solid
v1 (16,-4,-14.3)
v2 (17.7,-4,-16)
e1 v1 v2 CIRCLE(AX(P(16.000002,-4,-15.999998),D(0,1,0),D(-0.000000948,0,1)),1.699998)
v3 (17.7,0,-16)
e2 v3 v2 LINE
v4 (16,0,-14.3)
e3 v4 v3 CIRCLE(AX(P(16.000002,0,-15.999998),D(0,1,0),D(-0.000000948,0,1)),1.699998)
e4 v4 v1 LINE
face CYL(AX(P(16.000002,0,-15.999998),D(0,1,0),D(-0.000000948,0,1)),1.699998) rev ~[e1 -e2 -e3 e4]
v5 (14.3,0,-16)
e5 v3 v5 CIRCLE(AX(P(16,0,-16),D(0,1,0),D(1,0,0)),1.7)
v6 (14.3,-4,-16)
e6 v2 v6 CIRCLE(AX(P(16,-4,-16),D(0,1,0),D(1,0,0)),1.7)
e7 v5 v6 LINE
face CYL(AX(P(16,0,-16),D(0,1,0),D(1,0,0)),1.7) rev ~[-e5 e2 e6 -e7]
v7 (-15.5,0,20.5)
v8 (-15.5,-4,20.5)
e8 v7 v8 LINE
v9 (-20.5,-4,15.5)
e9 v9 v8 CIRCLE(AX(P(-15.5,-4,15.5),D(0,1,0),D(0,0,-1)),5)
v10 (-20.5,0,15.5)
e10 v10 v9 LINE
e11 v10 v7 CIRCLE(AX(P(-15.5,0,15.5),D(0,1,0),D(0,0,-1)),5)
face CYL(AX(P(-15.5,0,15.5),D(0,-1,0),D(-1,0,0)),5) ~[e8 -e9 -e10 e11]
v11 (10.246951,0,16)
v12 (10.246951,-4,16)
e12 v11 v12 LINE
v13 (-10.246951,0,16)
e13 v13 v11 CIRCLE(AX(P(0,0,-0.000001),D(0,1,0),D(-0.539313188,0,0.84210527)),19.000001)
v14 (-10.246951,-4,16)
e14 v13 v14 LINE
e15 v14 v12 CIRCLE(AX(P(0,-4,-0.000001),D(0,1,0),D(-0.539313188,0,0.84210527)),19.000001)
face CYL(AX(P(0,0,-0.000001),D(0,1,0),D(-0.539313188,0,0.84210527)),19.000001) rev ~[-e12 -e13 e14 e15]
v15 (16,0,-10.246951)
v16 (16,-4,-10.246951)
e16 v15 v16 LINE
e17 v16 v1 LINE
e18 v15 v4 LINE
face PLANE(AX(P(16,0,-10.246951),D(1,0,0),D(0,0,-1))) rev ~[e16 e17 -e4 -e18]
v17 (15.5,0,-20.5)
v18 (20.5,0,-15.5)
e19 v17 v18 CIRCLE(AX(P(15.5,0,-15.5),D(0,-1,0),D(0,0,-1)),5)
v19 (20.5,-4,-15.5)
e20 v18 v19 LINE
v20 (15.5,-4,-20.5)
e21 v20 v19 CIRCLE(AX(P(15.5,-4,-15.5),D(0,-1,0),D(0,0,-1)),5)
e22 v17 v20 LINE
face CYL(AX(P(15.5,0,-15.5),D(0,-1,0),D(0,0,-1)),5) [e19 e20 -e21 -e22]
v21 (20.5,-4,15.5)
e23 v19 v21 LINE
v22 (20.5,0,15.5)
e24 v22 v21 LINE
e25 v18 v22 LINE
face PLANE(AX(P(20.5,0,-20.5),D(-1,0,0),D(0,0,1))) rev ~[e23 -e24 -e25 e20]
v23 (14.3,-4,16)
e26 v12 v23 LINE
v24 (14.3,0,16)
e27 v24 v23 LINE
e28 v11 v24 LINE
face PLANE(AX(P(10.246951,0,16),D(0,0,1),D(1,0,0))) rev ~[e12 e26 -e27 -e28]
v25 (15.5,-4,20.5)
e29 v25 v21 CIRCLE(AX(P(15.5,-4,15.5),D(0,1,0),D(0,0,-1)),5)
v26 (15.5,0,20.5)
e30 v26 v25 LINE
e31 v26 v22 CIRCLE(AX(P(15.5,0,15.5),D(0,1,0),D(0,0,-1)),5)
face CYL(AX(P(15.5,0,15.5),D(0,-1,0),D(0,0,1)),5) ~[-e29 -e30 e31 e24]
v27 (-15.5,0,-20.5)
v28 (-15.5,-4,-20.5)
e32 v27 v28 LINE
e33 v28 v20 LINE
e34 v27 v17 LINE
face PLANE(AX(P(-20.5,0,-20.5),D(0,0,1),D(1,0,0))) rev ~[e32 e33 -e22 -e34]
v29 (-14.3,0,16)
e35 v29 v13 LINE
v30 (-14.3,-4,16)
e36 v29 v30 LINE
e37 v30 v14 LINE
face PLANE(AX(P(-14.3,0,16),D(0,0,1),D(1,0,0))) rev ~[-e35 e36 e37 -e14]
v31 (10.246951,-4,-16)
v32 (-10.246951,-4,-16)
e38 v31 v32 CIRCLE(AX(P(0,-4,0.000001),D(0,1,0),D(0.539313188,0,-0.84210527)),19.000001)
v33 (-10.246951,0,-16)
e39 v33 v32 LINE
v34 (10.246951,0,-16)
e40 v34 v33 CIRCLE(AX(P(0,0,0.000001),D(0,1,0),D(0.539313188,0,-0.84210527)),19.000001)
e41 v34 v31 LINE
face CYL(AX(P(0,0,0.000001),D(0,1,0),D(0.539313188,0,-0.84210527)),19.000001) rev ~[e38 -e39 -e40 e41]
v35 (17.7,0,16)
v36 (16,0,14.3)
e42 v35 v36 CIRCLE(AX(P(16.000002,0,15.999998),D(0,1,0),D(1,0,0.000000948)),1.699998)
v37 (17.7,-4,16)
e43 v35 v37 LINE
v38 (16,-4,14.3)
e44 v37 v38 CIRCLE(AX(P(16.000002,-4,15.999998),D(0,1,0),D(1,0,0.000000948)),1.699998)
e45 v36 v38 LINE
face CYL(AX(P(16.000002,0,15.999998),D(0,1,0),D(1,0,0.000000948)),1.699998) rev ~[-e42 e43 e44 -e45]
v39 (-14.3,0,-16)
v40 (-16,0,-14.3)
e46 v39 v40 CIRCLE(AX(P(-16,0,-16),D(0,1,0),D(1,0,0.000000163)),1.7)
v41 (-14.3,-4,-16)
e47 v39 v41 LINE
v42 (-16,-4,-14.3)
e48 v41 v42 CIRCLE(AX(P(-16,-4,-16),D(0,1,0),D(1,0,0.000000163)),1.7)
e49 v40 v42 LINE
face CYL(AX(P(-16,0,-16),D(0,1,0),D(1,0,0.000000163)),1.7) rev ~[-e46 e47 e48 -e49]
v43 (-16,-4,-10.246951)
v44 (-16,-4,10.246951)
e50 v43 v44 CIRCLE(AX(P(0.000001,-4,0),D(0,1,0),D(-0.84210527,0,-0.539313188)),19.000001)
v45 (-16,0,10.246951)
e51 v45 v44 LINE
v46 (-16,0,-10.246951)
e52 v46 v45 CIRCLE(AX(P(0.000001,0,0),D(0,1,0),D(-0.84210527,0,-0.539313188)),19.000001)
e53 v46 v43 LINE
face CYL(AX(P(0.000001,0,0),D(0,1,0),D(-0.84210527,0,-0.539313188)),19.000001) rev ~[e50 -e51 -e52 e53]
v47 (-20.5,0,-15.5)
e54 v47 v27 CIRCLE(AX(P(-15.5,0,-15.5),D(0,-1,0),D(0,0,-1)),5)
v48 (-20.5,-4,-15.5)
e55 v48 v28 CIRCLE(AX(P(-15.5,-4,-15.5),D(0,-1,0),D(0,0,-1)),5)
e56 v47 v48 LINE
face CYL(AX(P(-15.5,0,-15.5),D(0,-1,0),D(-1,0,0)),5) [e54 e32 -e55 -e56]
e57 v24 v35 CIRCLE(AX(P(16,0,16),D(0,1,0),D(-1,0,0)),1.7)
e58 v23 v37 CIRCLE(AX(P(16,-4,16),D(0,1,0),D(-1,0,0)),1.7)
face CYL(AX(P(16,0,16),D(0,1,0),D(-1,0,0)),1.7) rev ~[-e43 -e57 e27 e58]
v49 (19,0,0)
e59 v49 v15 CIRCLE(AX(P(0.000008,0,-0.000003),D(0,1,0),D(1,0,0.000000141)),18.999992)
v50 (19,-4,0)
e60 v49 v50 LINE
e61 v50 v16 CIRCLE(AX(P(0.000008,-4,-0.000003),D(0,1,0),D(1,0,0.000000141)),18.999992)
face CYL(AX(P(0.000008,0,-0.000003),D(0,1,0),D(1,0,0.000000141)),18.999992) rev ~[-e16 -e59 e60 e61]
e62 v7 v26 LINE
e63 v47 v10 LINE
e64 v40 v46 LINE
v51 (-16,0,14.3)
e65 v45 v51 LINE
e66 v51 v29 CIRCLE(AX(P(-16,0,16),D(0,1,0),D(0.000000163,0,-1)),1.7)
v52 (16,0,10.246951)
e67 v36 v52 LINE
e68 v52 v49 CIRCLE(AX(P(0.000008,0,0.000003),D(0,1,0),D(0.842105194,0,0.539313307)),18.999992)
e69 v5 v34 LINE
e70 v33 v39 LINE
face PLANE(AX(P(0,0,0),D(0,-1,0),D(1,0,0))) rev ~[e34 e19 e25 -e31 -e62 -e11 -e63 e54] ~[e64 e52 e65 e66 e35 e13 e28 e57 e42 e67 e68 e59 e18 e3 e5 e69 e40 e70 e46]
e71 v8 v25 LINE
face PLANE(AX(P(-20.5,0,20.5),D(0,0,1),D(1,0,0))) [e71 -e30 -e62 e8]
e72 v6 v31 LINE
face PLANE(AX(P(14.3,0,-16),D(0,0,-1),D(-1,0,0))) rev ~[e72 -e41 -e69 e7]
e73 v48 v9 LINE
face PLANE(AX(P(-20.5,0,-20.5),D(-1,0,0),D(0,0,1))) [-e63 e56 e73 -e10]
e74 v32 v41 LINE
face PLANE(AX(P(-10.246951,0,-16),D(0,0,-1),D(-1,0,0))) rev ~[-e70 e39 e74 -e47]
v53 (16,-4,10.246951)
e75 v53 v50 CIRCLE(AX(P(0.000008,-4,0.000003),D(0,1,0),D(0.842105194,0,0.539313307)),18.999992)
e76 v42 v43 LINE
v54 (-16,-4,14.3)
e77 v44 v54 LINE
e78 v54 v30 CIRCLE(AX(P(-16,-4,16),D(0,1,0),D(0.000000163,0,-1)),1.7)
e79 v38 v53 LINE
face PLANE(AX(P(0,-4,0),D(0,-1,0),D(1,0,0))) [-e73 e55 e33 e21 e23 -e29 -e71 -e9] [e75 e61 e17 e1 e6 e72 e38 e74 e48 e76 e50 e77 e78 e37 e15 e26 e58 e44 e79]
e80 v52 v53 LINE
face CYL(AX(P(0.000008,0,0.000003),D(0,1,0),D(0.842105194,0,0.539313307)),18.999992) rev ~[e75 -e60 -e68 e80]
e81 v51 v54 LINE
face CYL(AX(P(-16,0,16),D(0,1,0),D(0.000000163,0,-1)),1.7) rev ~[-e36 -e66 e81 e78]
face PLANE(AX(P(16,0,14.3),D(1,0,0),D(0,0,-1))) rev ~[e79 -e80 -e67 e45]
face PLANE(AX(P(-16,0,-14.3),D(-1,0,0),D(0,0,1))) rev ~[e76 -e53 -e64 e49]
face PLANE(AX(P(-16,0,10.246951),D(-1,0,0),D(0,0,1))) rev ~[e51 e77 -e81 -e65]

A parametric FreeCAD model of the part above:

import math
import FreeCAD as App
import Part
import Sketcher


def edges_at(feature, points):
    """Names of the edges that pass closest to the given points."""
    edges = feature.Shape.Edges
    near = lambda p: min(range(len(edges)), key=lambda i: edges[i].distToShape(Part.Vertex(*p))[0])
    return sorted({f"Edge{near(p) + 1}" for p in points})

doc = App.newDocument("Part")
params = doc.addObject("Spreadsheet::Sheet", "Params")
for row, (alias, value) in enumerate([
    ("sketch1_radius", "19.000001 mm"),
    ("sketch1_radius2", "1.7 mm"),
    ("sketch1_width", "41 mm"),
    ("pad1_length", "4 mm"),
    ("fillet_radius", "5 mm"),
], start=1):
    params.set(f"A{row}", alias)
    params.set(f"B{row}", "=" + value)
    params.setAlias(f"B{row}", alias)

body = doc.addObject("PartDesign::Body", "Body")

sketch1 = doc.addObject("Sketcher::SketchObject", "Sketch")
body.addObject(sketch1)
sketch1.AttachmentSupport = (doc.XZ_Plane, [""])
sketch1.MapMode = "FlatFace"
sketch1.addGeometry(Part.LineSegment(App.Vector(-20.5, 20.5, 0), App.Vector(-20.5, -20.5, 0)), False)
sketch1.addGeometry(Part.LineSegment(App.Vector(-20.5, -20.5, 0), App.Vector(20.5, -20.5, 0)), False)
sketch1.addGeometry(Part.LineSegment(App.Vector(20.5, -20.5, 0), App.Vector(20.5, 20.5, 0)), False)
sketch1.addGeometry(Part.LineSegment(App.Vector(20.5, 20.5, 0), App.Vector(-20.5, 20.5, 0)), False)
sketch1.addGeometry(Part.LineSegment(App.Vector(-16, 10.2, 0), App.Vector(-16, 14.3, 0)), False)
sketch1.addGeometry(Part.ArcOfCircle(Part.Circle(App.Vector(-16, 16, 0), App.Vector(0, 0, 1), 1.7), math.radians(0), math.radians(270)), False)
sketch1.addGeometry(Part.LineSegment(App.Vector(-14.3, 16, 0), App.Vector(-10.2, 16, 0)), False)
sketch1.addGeometry(Part.ArcOfCircle(Part.Circle(App.Vector(0, 0, 0), App.Vector(0, 0, 1), 19), math.radians(57), math.radians(123)), False)
sketch1.addGeometry(Part.LineSegment(App.Vector(10.2, 16, 0), App.Vector(14.3, 16, 0)), False)
sketch1.addGeometry(Part.ArcOfCircle(Part.Circle(App.Vector(16, 16, 0), App.Vector(0, 0, 1), 1.7), math.radians(0), math.radians(180)), False)
sketch1.addGeometry(Part.ArcOfCircle(Part.Circle(App.Vector(16, 16, 0), App.Vector(0, 0, 1), 1.7), math.radians(-90), math.radians(0)), False)
sketch1.addGeometry(Part.LineSegment(App.Vector(16, 14.3, 0), App.Vector(16, 10.2, 0)), False)
sketch1.addGeometry(Part.ArcOfCircle(Part.Circle(App.Vector(0, 0, 0), App.Vector(0, 0, 1), 19), math.radians(0), math.radians(33)), False)
sketch1.addGeometry(Part.ArcOfCircle(Part.Circle(App.Vector(0, 0, 0), App.Vector(0, 0, 1), 19), math.radians(-33), math.radians(0)), False)
sketch1.addGeometry(Part.LineSegment(App.Vector(16, -10.2, 0), App.Vector(16, -14.3, 0)), False)
sketch1.addGeometry(Part.ArcOfCircle(Part.Circle(App.Vector(16, -16, 0), App.Vector(0, 0, 1), 1.7), math.radians(0), math.radians(90)), False)
sketch1.addGeometry(Part.ArcOfCircle(Part.Circle(App.Vector(16, -16, 0), App.Vector(0, 0, 1), 1.7), math.radians(180), math.radians(360)), False)
sketch1.addGeometry(Part.LineSegment(App.Vector(14.3, -16, 0), App.Vector(10.2, -16, 0)), False)
sketch1.addGeometry(Part.ArcOfCircle(Part.Circle(App.Vector(0, 0, 0), App.Vector(0, 0, 1), 19), math.radians(-123), math.radians(-57)), False)
sketch1.addGeometry(Part.LineSegment(App.Vector(-10.2, -16, 0), App.Vector(-14.3, -16, 0)), False)
sketch1.addGeometry(Part.ArcOfCircle(Part.Circle(App.Vector(-16, -16, 0), App.Vector(0, 0, 1), 1.7), math.radians(90), math.radians(360)), False)
sketch1.addGeometry(Part.LineSegment(App.Vector(-16, -14.3, 0), App.Vector(-16, -10.2, 0)), False)
sketch1.addGeometry(Part.ArcOfCircle(Part.Circle(App.Vector(0, 0, 0), App.Vector(0, 0, 1), 19), math.radians(147), math.radians(213)), False)
sketch1.addConstraint(Sketcher.Constraint("Coincident", 0, 2, 1, 1))
sketch1.addConstraint(Sketcher.Constraint("Coincident", 1, 2, 2, 1))
sketch1.addConstraint(Sketcher.Constraint("Coincident", 2, 2, 3, 1))
sketch1.addConstraint(Sketcher.Constraint("Coincident", 3, 2, 0, 1))
sketch1.addConstraint(Sketcher.Constraint("Coincident", 4, 2, 5, 2))
sketch1.addConstraint(Sketcher.Constraint("Coincident", 5, 1, 6, 1))
sketch1.addConstraint(Sketcher.Constraint("Coincident", 6, 2, 7, 2))
sketch1.addConstraint(Sketcher.Constraint("Coincident", 7, 1, 8, 1))
sketch1.addConstraint(Sketcher.Constraint("Coincident", 8, 2, 9, 2))
sketch1.addConstraint(Sketcher.Constraint("Tangent", 9, 1, 10, 2))
sketch1.addConstraint(Sketcher.Constraint("Coincident", 10, 1, 11, 1))
sketch1.addConstraint(Sketcher.Constraint("Coincident", 11, 2, 12, 2))
sketch1.addConstraint(Sketcher.Constraint("Tangent", 12, 1, 13, 2))
sketch1.addConstraint(Sketcher.Constraint("Coincident", 13, 1, 14, 1))
sketch1.addConstraint(Sketcher.Constraint("Coincident", 14, 2, 15, 2))
sketch1.addConstraint(Sketcher.Constraint("Tangent", 15, 1, 16, 2))
sketch1.addConstraint(Sketcher.Constraint("Coincident", 16, 1, 17, 1))
sketch1.addConstraint(Sketcher.Constraint("Coincident", 17, 2, 18, 2))
sketch1.addConstraint(Sketcher.Constraint("Coincident", 18, 1, 19, 1))
sketch1.addConstraint(Sketcher.Constraint("Coincident", 19, 2, 20, 2))
sketch1.addConstraint(Sketcher.Constraint("Coincident", 20, 1, 21, 1))
sketch1.addConstraint(Sketcher.Constraint("Coincident", 21, 2, 22, 2))
sketch1.addConstraint(Sketcher.Constraint("Coincident", 22, 1, 4, 1))
sketch1.addConstraint(Sketcher.Constraint("Vertical", 0))
sketch1.addConstraint(Sketcher.Constraint("Horizontal", 1))
sketch1.addConstraint(Sketcher.Constraint("Vertical", 2))
sketch1.addConstraint(Sketcher.Constraint("Horizontal", 3))
sketch1.addConstraint(Sketcher.Constraint("Vertical", 4))
sketch1.addConstraint(Sketcher.Constraint("Horizontal", 6))
sketch1.addConstraint(Sketcher.Constraint("Horizontal", 8))
sketch1.addConstraint(Sketcher.Constraint("Vertical", 11))
sketch1.addConstraint(Sketcher.Constraint("Vertical", 14))
sketch1.addConstraint(Sketcher.Constraint("Horizontal", 17))
sketch1.addConstraint(Sketcher.Constraint("Horizontal", 19))
sketch1.addConstraint(Sketcher.Constraint("Vertical", 21))
sketch1.addConstraint(Sketcher.Constraint("Coincident", 7, 3, -1, 1))
sketch1.addConstraint(Sketcher.Constraint("Coincident", 12, 3, -1, 1))
sketch1.addConstraint(Sketcher.Constraint("Coincident", 18, 3, -1, 1))
sketch1.addConstraint(Sketcher.Constraint("Coincident", 22, 3, -1, 1))
sketch1.addConstraint(Sketcher.Constraint("Equal", 5, 9))
sketch1.addConstraint(Sketcher.Constraint("Equal", 9, 10))
sketch1.addConstraint(Sketcher.Constraint("Equal", 12, 13))
sketch1.addConstraint(Sketcher.Constraint("Equal", 10, 15))
sketch1.addConstraint(Sketcher.Constraint("Equal", 15, 16))
sketch1.addConstraint(Sketcher.Constraint("Equal", 7, 18))
sketch1.addConstraint(Sketcher.Constraint("Equal", 16, 20))
sketch1.addConstraint(Sketcher.Constraint("Equal", 18, 22))
sketch1.addConstraint(Sketcher.Constraint("Symmetric", 5, 3, 15, 3, -1, 1))
sketch1.addConstraint(Sketcher.Constraint("Symmetric", 9, 3, 20, 3, -1, 1))
sketch1.addConstraint(Sketcher.Constraint("Symmetric", 0, 2, 2, 2, -1, 1))
sketch1.addConstraint(Sketcher.Constraint("Symmetric", 11, 2, 21, 2, -1, 1))
sketch1.addConstraint(Sketcher.Constraint("Symmetric", 5, 3, 9, 3, -2))
sketch1.addConstraint(Sketcher.Constraint("PointOnObject", 12, 1, -1))
sketch1.addConstraint(Sketcher.Constraint("Horizontal", 10, 3, 5, 1))
sketch1.addConstraint(Sketcher.Constraint("Horizontal", 6, 2, 7, 1))
sketch1.addConstraint(Sketcher.Constraint("Horizontal", 8, 2, 9, 1))
sketch1.addConstraint(Sketcher.Constraint("Horizontal", 20, 3, 15, 1))
sketch1.addConstraint(Sketcher.Constraint("Horizontal", 15, 1, 16, 1))
sketch1.addConstraint(Sketcher.Constraint("Horizontal", 17, 2, 18, 1))
sketch1.addConstraint(Sketcher.Constraint("Horizontal", 13, 1, 21, 2))
sketch1.addConstraint(Sketcher.Constraint("Horizontal", 11, 2, 22, 1))
sketch1.addConstraint(Sketcher.Constraint("Vertical", 20, 3, 4, 2))
sketch1.addConstraint(Sketcher.Constraint("Equal", 3, 0))
sketch1.addConstraint(Sketcher.Constraint("Equal", 19, 4))
sketch1.addConstraint(Sketcher.Constraint("Radius", 7, 19.000001))
sketch1.addConstraint(Sketcher.Constraint("Radius", 5, 1.7))
sketch1.addConstraint(Sketcher.Constraint("DistanceX", 1, 1, 1, 2, 41.0))
sketch1.addConstraint(Sketcher.Constraint("DistanceX", 5, 3, -1, 1, 16.0))
sketch1.setExpression("Constraints[64]", "Params.sketch1_radius")
sketch1.setExpression("Constraints[65]", "Params.sketch1_radius2")
sketch1.setExpression("Constraints[66]", "Params.sketch1_width")
pad1 = doc.addObject("PartDesign::Pad", "Pad")
body.addObject(pad1)
pad1.Profile = sketch1
pad1.setExpression("Length", "Params.pad1_length")
doc.recompute()

fillet = doc.addObject("PartDesign::Fillet", "Fillet")
body.addObject(fillet)
fillet.Base = (pad1, edges_at(pad1, [
    (-20.5, -2, -20.5),
    (20.5, -2, -20.5),
    (20.5, -2, 20.5),
    (-20.5, -2, 20.5),
]))
fillet.setExpression("Radius", "Params.fillet_radius")

doc.recompute()
